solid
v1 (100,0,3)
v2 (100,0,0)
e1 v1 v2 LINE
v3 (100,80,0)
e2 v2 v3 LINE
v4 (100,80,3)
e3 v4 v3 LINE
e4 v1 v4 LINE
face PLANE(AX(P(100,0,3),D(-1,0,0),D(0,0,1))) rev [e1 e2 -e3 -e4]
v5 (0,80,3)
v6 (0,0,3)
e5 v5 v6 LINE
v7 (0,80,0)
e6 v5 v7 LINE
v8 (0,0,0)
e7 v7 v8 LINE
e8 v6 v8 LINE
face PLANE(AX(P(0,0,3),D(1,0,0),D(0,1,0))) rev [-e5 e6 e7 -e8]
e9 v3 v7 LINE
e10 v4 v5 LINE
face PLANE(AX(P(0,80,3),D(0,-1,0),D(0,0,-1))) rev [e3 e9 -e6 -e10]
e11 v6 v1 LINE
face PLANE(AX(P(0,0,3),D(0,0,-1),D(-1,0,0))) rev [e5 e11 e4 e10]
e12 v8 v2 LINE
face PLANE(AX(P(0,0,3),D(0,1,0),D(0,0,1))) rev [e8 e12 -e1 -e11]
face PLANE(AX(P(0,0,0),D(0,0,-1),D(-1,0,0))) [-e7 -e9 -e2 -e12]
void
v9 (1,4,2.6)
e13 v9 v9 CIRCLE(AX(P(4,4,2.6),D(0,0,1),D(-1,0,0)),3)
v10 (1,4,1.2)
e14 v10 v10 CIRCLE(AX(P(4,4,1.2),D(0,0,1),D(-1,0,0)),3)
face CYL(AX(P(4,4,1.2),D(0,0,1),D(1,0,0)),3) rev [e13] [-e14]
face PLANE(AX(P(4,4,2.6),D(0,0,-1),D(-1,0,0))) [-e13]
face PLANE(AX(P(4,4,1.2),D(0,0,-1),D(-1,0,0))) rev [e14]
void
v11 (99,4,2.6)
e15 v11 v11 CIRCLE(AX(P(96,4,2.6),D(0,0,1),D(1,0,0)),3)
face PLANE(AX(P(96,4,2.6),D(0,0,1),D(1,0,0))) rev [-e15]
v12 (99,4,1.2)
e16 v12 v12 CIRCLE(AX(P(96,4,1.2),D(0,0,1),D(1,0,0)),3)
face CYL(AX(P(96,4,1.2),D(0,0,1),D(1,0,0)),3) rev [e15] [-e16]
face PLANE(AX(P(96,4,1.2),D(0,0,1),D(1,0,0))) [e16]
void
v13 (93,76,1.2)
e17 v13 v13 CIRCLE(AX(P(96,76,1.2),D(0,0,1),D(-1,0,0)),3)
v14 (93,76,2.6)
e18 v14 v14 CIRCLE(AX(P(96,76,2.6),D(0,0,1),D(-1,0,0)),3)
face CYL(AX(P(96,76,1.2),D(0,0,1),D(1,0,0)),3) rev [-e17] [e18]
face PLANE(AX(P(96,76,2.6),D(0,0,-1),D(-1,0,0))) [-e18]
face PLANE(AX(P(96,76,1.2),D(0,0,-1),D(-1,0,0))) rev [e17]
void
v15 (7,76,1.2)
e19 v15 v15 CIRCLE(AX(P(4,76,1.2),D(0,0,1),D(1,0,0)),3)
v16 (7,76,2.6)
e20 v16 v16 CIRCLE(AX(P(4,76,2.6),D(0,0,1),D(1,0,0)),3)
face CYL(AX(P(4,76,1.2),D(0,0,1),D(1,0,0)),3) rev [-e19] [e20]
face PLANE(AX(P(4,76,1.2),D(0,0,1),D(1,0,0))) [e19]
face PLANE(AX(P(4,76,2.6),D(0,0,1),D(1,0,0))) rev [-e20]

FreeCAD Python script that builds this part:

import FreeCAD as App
import Part
import Sketcher

V = App.Vector
Q = App.Units.Quantity


def add_polygon(sketch, points):
    """Adds a closed chain of lines whose ends are joined by coincident constraints."""
    first, n = sketch.GeometryCount, len(points)
    for a, b in zip(points, points[1:] + points[:1]):
        sketch.addGeometry(Part.LineSegment(App.Vector(*a, 0), App.Vector(*b, 0)), False)
    for i in range(n):
        sketch.addConstraint(Sketcher.Constraint("Coincident", first + i, 2, first + (i + 1) % n, 1))

doc = App.newDocument("Part")
body = doc.addObject("PartDesign::Body", "Body")

sketch1 = body.newObject("Sketcher::SketchObject", "Sketch")
sketch1.AttachmentSupport = (doc.getObject("XY_Plane"), [""])
sketch1.MapMode = "FlatFace"
add_polygon(sketch1, [(0, 80), (0, 0), (100, 0), (100, 80)])
sketch1.addConstraint([
    Sketcher.Constraint("Vertical", 0),
    Sketcher.Constraint("Horizontal", 1),
    Sketcher.Constraint("Vertical", 2),
    Sketcher.Constraint("Horizontal", 3),
    Sketcher.Constraint("Coincident", 0, 2, -1, 1),
    Sketcher.Constraint("DistanceX", 1, 1, 1, 2, Q("100 mm")),
    Sketcher.Constraint("DistanceY", 0, 2, 0, 1, Q("80 mm")),
])
pad1 = body.newObject("PartDesign::Pad", "Pad")
pad1.Profile = sketch1
pad1.Length = 3

sketch2 = body.newObject("Sketcher::SketchObject", "Sketch001")
sketch2.AttachmentSupport = (doc.getObject("XY_Plane"), [""])
sketch2.MapMode = "FlatFace"
sketch2.AttachmentOffset = App.Placement(V(0, 0, 2.6), App.Rotation())
sketch2.addGeometry([
    Part.Circle(V(4, 76, 0), V(0, 0, 1), 3),
    Part.Circle(V(96, 76, 0), V(0, 0, 1), 3),
    Part.Circle(V(96, 4, 0), V(0, 0, 1), 3),
    Part.Circle(V(4, 4, 0), V(0, 0, 1), 3),
], False)
sketch2.addConstraint([
    Sketcher.Constraint("Equal", 0, 1),
    Sketcher.Constraint("Equal", 1, 2),
    Sketcher.Constraint("Equal", 2, 3),
    Sketcher.Constraint("Horizontal", 0, 3, 1, 3),
    Sketcher.Constraint("Horizontal", 2, 3, 3, 3),
    Sketcher.Constraint("Vertical", 1, 3, 2, 3),
    Sketcher.Constraint("Vertical", 0, 3, 3, 3),
    Sketcher.Constraint("Diameter", 0, Q("6 mm")),
    Sketcher.Constraint("DistanceX", -1, 1, 0, 3, Q("4 mm")),
    Sketcher.Constraint("DistanceY", -1, 1, 0, 3, Q("76 mm")),
    Sketcher.Constraint("DistanceX", -1, 1, 1, 3, Q("96 mm")),
    Sketcher.Constraint("DistanceY", -1, 1, 2, 3, Q("4 mm")),
])
pocket1 = body.newObject("PartDesign::Pocket", "Pocket")
pocket1.Profile = sketch2
pocket1.Length = 1.4

doc.recompute()
